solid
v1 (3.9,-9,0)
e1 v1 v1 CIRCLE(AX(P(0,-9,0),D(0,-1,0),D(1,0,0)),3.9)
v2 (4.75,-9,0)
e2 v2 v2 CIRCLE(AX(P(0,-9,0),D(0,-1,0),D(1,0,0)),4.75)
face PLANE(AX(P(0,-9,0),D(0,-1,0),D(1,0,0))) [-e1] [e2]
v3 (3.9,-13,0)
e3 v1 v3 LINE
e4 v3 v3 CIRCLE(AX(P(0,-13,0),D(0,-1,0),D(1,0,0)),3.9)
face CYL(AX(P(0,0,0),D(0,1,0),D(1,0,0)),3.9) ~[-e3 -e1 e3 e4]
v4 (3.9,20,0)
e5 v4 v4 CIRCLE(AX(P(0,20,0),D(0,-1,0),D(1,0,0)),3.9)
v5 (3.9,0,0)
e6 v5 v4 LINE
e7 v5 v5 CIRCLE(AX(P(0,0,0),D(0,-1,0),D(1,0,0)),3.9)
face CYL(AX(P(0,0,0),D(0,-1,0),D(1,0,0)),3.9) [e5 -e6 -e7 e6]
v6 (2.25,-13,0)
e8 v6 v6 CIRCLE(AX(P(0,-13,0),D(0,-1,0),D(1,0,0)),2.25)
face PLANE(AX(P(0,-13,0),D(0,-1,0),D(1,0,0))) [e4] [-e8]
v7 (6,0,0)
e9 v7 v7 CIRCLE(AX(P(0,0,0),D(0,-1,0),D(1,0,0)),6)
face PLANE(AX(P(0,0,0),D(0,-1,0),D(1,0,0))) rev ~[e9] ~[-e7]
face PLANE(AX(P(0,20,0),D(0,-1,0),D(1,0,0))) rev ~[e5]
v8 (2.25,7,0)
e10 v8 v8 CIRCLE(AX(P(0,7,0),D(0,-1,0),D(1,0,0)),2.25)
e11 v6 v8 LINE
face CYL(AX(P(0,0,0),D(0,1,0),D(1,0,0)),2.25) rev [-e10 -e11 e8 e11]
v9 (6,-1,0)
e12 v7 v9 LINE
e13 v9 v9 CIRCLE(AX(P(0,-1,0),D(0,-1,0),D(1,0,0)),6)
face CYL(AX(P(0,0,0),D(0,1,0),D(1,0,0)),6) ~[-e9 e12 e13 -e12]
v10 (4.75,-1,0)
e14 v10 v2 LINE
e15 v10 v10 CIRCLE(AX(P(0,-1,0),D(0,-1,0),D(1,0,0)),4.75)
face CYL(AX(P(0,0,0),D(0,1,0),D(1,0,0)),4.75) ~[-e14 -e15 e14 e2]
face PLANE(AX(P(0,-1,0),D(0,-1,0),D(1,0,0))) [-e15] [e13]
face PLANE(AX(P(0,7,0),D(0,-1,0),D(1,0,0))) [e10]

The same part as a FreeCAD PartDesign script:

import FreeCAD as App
import Part
import Sketcher

doc = App.newDocument("Part")
body = doc.addObject("PartDesign::Body", "Body")

# Sketch on XZ plane
sketch1 = body.newObject("Sketcher::SketchObject", "Sketch")
sketch1.AttachmentSupport = (doc.getObject("XZ_Plane"), [""])
sketch1.MapMode = "FlatFace"
sketch1.addGeometry([
    Part.Circle(App.Vector(0, 0, 0), App.Vector(0, 0, 1), 3.9),
    Part.Circle(App.Vector(0, 0, 0), App.Vector(0, 0, 1), 2.25),
], False)
sketch1.addConstraint([
    Sketcher.Constraint("Coincident", 0, 3, -1, 1),
    Sketcher.Constraint("Coincident", 1, 3, -1, 1),
    Sketcher.Constraint("Diameter", 0, 7.8),
    Sketcher.Constraint("Diameter", 1, 4.5),
])
pad1 = body.newObject("PartDesign::Pad", "Pad")
pad1.Profile = sketch1
pad1.Length = 13

# Sketch on XZ plane
sketch2 = body.newObject("Sketcher::SketchObject", "Sketch001")
sketch2.AttachmentSupport = (doc.getObject("XZ_Plane"), [""])
sketch2.MapMode = "FlatFace"
sketch2.addGeometry([
    Part.Circle(App.Vector(0, 0, 0), App.Vector(0, 0, 1), 4.75),
    Part.Circle(App.Vector(0, 0, 0), App.Vector(0, 0, 1), 3.9),
], False)
sketch2.addConstraint([
    Sketcher.Constraint("Coincident", 0, 3, -1, 1),
    Sketcher.Constraint("Coincident", 1, 3, -1, 1),
    Sketcher.Constraint("Diameter", 0, 9.5),
    Sketcher.Constraint("Diameter", 1, 7.8),
])
pad2 = body.newObject("PartDesign::Pad", "Pad001")
pad2.Profile = sketch2
pad2.Length = 9

# Sketch on XZ plane
sketch3 = body.newObject("Sketcher::SketchObject", "Sketch002")
sketch3.AttachmentSupport = (doc.getObject("XZ_Plane"), [""])
sketch3.MapMode = "FlatFace"
sketch3.addGeometry([
    Part.Circle(App.Vector(0, 0, 0), App.Vector(0, 0, 1), 6),
    Part.Circle(App.Vector(0, 0, 0), App.Vector(0, 0, 1), 4.75),
], False)
sketch3.addConstraint([
    Sketcher.Constraint("Coincident", 0, 3, -1, 1),
    Sketcher.Constraint("Coincident", 1, 3, -1, 1),
    Sketcher.Constraint("Diameter", 0, 12.0),
    Sketcher.Constraint("Diameter", 1, 9.5),
])
pad3 = body.newObject("PartDesign::Pad", "Pad002")
pad3.Profile = sketch3
pad3.Length = 1

# Sketch on XZ plane
sketch4 = body.newObject("Sketcher::SketchObject", "Sketch003")
sketch4.AttachmentSupport = (doc.getObject("XZ_Plane"), [""])
sketch4.MapMode = "FlatFace"
sketch4.addGeometry(Part.Circle(App.Vector(0, 0, 0), App.Vector(0, 0, 1), 3.9), False)
sketch4.addConstraint([
    Sketcher.Constraint("Coincident", 0, 3, -1, 1),
    Sketcher.Constraint("Diameter", 0, 7.8),
])
pad4 = body.newObject("PartDesign::Pad", "Pad003")
pad4.Profile = sketch4
pad4.Length = 20
pad4.Reversed = True

# Sketch on XZ plane
sketch5 = body.newObject("Sketcher::SketchObject", "Sketch004")
sketch5.AttachmentSupport = (doc.getObject("XZ_Plane"), [""])
sketch5.MapMode = "FlatFace"
sketch5.addGeometry(Part.Circle(App.Vector(0, 0, 0), App.Vector(0, 0, 1), 2.25), False)
sketch5.addConstraint([
    Sketcher.Constraint("Coincident", 0, 3, -1, 1),
    Sketcher.Constraint("Diameter", 0, 4.5),
])
pocket1 = body.newObject("PartDesign::Pocket", "Pocket")
pocket1.Profile = sketch5
pocket1.Length = 7

doc.recompute()
